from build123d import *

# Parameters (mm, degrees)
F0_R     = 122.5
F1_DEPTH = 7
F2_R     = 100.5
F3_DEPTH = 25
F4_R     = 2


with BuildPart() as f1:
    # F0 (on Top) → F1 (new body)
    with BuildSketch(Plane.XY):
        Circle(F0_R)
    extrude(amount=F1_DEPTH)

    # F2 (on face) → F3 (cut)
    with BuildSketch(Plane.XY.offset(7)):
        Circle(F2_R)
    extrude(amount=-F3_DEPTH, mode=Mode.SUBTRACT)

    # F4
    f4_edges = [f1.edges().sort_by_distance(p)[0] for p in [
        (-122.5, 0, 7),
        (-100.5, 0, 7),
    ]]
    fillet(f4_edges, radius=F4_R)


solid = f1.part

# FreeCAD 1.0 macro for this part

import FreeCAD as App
import Part
import Sketcher
Q = App.Units.Quantity


def edges_at(feature, points):
    """Names of the edges that pass closest to the given points."""
    edges = feature.Shape.Edges
    near = lambda p: min(range(len(edges)), key=lambda i: edges[i].distToShape(Part.Vertex(*p))[0])
    return sorted({f"Edge{near(p) + 1}" for p in points})

doc = App.newDocument("Part")
body = doc.addObject("PartDesign::Body", "Body")

# Sketch on XY plane
sketch1 = body.newObject("Sketcher::SketchObject", "Sketch")
sketch1.AttachmentSupport = (doc.getObject("XY_Plane"), [""])
sketch1.MapMode = "FlatFace"
sketch1.addGeometry(Part.Circle(App.Vector(0, 0, 0), App.Vector(0, 0, 1), 122), False)
sketch1.addConstraint([
    Sketcher.Constraint("Coincident", 0, 3, -1, 1),
    Sketcher.Constraint("Diameter", 0, Q("245 mm")),
])
pad1 = body.newObject("PartDesign::Pad", "Pad")
pad1.Profile = sketch1
pad1.Length = 7

# Sketch on XY plane
sketch2 = body.newObject("Sketcher::SketchObject", "Sketch001")
sketch2.AttachmentSupport = (doc.getObject("XY_Plane"), [""])
sketch2.MapMode = "FlatFace"
sketch2.AttachmentOffset = App.Placement(App.Vector(0, 0, 7), App.Rotation())
sketch2.addGeometry(Part.Circle(App.Vector(0, 0, 0), App.Vector(0, 0, 1), 100), False)
sketch2.addConstraint([
    Sketcher.Constraint("Coincident", 0, 3, -1, 1),
    Sketcher.Constraint("Diameter", 0, Q("201 mm")),
])
pocket1 = body.newObject("PartDesign::Pocket", "Pocket")
pocket1.Profile = sketch2
pocket1.Length = 25
doc.recompute()

fillet = body.newObject("PartDesign::Fillet", "Fillet")
fillet.Base = (pocket1, edges_at(pocket1, [(-122.5, 0, 7), (-100.5, 0, 7)]))
fillet.Radius = 2

doc.recompute()
